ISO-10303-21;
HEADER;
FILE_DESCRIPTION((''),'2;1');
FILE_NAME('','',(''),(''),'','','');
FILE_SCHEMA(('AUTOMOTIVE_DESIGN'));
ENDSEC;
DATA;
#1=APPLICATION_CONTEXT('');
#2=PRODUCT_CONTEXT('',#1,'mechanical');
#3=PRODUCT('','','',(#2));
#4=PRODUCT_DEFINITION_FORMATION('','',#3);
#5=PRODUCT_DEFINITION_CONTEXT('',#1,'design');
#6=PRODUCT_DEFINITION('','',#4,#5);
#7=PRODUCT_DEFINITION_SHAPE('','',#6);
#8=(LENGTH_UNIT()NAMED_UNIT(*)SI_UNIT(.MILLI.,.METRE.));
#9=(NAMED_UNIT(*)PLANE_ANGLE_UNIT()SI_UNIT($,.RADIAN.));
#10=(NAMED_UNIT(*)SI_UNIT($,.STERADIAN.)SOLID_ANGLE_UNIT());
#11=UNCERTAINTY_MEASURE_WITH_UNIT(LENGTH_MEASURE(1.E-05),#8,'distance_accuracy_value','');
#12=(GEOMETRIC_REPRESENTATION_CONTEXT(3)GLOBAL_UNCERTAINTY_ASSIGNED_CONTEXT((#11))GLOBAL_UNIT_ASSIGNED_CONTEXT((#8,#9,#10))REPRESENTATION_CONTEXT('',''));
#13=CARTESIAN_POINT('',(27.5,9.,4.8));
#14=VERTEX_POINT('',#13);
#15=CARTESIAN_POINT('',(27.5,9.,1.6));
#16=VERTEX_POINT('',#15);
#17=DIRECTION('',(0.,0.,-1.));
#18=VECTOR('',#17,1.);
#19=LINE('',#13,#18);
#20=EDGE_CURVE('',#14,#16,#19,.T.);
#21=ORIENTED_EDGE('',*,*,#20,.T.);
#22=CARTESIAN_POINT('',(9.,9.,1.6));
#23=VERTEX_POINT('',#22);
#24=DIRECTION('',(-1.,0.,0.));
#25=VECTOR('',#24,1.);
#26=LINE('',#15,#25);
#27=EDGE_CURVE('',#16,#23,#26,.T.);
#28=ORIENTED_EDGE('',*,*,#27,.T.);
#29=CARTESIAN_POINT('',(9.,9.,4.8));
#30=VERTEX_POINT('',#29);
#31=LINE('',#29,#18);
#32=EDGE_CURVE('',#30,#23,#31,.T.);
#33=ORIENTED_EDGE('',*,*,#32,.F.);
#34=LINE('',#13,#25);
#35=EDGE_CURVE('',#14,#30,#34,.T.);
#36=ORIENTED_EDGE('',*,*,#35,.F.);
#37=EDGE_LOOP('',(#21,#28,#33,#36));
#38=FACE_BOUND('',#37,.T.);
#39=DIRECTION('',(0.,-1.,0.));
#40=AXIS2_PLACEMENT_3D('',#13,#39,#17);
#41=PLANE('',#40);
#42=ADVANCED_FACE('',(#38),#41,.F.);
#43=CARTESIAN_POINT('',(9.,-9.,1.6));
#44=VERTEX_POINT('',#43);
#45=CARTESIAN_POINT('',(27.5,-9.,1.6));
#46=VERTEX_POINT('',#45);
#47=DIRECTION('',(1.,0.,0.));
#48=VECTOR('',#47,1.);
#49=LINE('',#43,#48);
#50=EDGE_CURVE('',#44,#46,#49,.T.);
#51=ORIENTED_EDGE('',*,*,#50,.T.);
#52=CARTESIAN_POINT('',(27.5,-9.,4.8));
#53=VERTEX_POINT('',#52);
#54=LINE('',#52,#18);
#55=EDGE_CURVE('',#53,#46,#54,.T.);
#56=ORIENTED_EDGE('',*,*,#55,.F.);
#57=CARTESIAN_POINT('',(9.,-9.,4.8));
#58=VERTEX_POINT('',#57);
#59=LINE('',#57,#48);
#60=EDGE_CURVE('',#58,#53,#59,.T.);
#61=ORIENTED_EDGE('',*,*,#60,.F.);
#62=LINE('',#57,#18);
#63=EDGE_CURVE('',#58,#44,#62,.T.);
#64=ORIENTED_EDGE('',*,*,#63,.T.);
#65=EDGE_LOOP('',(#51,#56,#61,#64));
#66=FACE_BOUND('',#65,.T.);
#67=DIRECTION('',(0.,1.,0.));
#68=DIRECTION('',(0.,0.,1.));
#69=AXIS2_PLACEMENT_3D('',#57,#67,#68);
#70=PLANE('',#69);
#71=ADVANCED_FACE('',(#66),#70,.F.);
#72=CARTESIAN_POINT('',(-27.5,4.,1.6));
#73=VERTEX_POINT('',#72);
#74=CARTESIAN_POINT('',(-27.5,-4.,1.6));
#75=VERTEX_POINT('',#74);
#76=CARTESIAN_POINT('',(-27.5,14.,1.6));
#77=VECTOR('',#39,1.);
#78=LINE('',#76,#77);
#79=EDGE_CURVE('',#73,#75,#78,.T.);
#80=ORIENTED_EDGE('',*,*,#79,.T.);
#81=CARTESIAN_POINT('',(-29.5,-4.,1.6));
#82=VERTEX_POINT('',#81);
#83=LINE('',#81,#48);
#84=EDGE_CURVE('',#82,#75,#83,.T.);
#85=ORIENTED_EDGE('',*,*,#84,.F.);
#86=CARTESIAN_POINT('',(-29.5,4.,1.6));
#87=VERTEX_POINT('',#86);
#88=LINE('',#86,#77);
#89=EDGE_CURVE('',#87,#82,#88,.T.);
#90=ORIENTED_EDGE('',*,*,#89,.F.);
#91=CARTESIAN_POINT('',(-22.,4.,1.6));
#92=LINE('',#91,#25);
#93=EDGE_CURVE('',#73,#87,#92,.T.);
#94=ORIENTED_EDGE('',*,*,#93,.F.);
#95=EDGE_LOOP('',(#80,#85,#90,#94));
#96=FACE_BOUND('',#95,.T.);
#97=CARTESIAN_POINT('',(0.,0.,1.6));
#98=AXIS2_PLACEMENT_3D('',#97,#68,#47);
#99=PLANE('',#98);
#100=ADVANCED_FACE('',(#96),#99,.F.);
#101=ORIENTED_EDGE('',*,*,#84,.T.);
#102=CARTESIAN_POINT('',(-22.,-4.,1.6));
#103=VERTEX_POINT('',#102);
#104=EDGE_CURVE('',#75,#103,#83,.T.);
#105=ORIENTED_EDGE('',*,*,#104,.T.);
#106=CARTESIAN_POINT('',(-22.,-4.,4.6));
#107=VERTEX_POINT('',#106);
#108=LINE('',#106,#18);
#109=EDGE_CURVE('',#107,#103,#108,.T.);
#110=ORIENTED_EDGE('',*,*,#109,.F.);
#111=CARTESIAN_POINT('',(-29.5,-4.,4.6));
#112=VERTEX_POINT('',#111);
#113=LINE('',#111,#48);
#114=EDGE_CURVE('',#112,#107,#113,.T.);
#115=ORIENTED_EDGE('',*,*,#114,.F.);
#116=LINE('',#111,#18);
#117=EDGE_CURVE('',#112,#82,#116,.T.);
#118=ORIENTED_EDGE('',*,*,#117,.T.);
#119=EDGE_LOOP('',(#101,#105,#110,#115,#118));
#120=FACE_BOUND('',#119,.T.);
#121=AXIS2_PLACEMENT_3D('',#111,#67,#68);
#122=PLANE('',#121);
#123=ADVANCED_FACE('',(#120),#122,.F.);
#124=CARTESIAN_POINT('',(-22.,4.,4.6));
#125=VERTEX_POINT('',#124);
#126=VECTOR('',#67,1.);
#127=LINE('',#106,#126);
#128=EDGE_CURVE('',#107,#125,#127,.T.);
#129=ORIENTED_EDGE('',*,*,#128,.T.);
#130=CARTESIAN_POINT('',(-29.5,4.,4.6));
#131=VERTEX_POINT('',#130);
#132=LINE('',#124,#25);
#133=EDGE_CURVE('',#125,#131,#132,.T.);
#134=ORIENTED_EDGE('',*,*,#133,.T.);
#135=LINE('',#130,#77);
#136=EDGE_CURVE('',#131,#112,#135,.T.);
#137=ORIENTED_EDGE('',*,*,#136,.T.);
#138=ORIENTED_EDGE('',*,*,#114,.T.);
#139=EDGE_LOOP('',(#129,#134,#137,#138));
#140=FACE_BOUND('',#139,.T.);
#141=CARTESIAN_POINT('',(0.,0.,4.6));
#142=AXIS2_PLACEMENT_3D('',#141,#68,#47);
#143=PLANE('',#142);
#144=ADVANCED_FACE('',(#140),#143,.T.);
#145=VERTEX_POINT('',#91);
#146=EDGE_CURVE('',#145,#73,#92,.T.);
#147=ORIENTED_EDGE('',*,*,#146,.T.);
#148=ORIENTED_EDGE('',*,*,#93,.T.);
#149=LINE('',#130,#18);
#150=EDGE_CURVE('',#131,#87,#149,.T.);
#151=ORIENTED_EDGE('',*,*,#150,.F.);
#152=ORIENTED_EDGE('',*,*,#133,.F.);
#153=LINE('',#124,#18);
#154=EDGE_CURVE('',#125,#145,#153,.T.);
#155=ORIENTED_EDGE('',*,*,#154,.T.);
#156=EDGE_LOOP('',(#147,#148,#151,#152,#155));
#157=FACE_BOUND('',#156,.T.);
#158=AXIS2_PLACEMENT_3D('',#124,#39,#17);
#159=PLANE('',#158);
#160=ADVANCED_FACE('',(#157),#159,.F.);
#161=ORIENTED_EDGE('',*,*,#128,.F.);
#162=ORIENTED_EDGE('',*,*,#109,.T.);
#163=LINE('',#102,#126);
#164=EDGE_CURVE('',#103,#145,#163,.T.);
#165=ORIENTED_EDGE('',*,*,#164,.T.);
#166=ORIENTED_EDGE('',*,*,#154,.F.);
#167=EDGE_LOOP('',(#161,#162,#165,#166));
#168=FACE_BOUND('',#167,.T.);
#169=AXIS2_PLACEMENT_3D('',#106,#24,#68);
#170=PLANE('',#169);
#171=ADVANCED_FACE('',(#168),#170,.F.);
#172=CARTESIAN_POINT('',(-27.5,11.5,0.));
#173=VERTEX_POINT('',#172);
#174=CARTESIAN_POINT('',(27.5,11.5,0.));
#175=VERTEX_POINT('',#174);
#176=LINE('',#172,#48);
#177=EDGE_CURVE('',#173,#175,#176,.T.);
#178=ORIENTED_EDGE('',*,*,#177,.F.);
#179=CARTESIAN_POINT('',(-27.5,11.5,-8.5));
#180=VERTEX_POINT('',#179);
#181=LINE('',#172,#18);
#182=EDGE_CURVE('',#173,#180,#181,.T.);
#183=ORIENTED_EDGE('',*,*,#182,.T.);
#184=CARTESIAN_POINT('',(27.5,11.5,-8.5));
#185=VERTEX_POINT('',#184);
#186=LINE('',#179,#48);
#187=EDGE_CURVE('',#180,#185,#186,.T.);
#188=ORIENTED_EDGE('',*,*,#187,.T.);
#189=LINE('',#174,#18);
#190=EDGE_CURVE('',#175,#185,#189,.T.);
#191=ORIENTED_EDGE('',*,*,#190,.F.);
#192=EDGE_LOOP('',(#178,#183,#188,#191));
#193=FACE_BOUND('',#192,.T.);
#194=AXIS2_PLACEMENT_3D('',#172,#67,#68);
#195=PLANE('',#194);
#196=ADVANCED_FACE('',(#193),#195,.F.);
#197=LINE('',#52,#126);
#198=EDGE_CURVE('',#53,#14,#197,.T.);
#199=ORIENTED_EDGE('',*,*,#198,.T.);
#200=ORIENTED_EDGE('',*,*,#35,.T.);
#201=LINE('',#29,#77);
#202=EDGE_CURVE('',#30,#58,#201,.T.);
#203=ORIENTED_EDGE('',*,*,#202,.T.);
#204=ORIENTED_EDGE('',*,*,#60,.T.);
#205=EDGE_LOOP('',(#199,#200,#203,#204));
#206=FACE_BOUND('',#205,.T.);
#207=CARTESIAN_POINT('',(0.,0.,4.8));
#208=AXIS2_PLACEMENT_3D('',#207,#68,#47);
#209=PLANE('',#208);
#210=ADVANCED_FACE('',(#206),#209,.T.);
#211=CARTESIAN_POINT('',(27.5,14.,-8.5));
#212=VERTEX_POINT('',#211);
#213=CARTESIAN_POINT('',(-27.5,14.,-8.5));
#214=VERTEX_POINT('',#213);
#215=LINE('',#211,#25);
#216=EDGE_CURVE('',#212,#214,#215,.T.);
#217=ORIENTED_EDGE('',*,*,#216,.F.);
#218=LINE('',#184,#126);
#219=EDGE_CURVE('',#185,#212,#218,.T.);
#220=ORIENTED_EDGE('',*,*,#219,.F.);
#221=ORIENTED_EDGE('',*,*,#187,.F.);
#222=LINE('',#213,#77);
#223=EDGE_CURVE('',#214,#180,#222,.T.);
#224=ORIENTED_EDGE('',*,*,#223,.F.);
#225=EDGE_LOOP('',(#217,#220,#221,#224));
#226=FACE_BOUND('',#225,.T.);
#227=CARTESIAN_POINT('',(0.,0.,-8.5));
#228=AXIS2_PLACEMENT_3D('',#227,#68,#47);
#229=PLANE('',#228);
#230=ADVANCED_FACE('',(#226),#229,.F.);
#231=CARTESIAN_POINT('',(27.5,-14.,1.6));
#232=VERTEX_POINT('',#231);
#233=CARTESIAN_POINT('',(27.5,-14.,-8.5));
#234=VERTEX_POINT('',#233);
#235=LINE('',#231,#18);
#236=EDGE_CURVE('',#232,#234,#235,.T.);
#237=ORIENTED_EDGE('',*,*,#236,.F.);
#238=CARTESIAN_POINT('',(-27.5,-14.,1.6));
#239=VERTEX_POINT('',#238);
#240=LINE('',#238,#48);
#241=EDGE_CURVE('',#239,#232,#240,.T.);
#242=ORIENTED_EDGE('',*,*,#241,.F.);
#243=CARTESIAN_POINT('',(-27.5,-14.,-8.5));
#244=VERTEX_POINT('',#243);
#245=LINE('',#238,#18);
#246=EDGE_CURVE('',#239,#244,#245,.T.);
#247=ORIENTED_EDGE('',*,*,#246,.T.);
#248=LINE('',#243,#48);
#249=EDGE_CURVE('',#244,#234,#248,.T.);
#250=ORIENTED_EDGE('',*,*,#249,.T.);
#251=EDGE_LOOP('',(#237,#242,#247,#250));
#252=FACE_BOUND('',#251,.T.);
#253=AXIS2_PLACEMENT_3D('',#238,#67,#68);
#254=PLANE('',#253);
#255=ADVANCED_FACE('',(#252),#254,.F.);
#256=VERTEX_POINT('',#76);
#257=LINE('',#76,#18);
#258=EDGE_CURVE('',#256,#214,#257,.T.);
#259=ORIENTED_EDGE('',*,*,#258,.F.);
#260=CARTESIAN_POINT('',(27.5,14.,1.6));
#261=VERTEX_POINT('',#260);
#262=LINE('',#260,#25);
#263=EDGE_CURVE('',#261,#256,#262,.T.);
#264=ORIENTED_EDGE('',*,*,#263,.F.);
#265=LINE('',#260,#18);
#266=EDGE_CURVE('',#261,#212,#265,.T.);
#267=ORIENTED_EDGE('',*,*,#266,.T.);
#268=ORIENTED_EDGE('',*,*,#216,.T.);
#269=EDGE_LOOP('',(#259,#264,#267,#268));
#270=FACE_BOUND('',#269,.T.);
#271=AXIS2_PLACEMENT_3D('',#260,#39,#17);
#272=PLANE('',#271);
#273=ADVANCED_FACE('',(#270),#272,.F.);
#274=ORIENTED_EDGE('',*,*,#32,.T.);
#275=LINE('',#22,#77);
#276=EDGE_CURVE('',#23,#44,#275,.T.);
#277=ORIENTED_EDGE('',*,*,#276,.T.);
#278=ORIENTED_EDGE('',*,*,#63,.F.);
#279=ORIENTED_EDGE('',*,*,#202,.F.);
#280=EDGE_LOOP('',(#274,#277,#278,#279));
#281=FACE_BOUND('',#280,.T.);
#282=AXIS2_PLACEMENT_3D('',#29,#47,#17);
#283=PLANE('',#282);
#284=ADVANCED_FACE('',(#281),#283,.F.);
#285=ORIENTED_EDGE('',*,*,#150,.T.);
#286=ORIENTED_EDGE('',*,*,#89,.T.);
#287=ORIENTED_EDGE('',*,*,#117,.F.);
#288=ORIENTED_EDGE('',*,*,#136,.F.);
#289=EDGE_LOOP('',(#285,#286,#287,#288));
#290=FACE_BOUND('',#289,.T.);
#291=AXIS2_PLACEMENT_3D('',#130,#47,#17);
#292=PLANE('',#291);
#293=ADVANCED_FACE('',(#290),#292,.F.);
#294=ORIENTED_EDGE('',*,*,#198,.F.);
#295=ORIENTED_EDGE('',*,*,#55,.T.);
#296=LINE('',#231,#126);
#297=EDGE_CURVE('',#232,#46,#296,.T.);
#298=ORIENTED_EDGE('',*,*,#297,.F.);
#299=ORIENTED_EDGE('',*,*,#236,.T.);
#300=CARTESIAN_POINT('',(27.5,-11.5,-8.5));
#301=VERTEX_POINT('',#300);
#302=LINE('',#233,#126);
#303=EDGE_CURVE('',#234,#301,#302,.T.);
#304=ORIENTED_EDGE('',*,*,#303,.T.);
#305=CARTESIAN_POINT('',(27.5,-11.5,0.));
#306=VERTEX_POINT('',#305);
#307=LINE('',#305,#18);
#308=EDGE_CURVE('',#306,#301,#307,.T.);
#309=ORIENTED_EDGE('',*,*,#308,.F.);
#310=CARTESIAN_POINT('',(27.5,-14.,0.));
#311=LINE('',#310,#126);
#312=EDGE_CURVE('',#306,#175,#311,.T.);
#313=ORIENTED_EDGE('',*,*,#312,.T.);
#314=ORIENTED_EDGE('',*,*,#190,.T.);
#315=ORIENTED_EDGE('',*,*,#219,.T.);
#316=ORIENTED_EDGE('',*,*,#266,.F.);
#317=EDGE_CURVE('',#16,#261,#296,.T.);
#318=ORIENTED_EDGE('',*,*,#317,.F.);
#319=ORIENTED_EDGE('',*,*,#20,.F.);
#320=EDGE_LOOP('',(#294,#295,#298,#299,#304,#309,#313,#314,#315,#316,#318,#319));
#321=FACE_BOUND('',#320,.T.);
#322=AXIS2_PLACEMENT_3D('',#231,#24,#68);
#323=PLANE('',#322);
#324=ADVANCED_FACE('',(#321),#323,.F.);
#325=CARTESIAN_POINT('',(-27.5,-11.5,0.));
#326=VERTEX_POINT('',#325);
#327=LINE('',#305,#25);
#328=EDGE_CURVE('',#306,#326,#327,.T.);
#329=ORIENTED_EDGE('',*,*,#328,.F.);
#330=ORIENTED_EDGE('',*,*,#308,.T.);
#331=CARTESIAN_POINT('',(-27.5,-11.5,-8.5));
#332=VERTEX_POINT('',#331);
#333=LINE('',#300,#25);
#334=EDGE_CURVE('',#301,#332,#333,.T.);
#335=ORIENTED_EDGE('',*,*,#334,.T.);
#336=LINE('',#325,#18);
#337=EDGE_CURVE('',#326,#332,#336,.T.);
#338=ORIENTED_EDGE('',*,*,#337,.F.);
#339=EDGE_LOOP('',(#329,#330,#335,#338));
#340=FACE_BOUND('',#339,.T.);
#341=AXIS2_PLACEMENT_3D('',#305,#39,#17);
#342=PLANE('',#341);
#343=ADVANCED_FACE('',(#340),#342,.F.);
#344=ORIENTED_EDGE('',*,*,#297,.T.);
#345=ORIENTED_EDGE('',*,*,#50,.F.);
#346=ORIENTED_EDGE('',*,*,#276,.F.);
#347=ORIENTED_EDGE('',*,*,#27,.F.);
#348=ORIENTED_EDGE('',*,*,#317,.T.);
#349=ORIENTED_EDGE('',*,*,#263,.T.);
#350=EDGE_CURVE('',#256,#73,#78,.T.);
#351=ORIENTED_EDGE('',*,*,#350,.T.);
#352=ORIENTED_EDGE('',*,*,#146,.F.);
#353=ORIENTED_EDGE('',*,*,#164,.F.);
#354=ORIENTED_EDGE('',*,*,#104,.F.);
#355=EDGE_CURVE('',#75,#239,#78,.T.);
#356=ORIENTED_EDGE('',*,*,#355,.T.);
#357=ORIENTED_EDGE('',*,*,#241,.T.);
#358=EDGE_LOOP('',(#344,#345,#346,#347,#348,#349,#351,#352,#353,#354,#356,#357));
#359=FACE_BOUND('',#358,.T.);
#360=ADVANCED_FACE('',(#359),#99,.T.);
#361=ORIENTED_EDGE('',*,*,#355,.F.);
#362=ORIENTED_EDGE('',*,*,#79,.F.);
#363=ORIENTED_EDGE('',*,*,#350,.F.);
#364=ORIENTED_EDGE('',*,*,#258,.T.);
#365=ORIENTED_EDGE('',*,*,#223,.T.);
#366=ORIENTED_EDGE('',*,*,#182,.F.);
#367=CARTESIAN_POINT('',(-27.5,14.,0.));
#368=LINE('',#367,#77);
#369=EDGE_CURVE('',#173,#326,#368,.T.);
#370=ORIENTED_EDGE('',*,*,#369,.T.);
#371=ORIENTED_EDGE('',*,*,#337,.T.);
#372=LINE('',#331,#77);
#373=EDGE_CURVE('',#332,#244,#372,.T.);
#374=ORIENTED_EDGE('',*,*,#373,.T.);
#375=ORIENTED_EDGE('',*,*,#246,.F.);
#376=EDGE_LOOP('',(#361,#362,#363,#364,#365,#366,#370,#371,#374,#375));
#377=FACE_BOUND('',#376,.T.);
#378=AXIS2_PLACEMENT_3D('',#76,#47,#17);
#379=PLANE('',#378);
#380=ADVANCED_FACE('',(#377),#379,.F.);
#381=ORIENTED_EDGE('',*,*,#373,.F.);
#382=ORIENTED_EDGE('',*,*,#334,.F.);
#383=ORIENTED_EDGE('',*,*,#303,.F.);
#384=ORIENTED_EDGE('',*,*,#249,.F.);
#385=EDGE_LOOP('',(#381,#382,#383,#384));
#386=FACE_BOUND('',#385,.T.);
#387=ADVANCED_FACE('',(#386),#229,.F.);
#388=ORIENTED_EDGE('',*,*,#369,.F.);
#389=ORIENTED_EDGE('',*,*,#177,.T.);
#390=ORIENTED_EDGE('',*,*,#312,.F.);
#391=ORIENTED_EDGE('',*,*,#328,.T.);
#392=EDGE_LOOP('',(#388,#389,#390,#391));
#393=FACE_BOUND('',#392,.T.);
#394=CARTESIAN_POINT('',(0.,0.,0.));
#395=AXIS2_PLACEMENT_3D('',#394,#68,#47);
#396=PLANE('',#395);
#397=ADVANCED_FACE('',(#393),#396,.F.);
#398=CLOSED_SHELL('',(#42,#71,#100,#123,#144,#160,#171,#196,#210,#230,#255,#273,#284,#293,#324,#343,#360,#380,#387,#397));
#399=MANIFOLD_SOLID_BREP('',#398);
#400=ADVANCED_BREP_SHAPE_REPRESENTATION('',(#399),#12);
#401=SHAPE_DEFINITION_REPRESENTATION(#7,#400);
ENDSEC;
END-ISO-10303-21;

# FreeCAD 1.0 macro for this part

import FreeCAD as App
import Part
import Sketcher

V = App.Vector
Q = App.Units.Quantity


def add_polygon(sketch, points):
    """Adds a closed chain of lines whose ends are joined by coincident constraints."""
    first, n = sketch.GeometryCount, len(points)
    for a, b in zip(points, points[1:] + points[:1]):
        sketch.addGeometry(Part.LineSegment(App.Vector(*a, 0), App.Vector(*b, 0)), False)
    for i in range(n):
        sketch.addConstraint(Sketcher.Constraint("Coincident", first + i, 2, first + (i + 1) % n, 1))

doc = App.newDocument("Part")
body = doc.addObject("PartDesign::Body", "Body")

# Sketch on XY plane
sketch1 = body.newObject("Sketcher::SketchObject", "Sketch")
sketch1.AttachmentSupport = (doc.getObject("XY_Plane"), [""])
sketch1.MapMode = "FlatFace"
add_polygon(sketch1, [(-28, 14), (-28, -14), (28, -14), (28, 14)])  # lines 0-3
sketch1.addConstraint([
    Sketcher.Constraint("Vertical", 0),
    Sketcher.Constraint("Horizontal", 1),
    Sketcher.Constraint("Vertical", 2),
    Sketcher.Constraint("Horizontal", 3),
    Sketcher.Constraint("Symmetric", 0, 2, 2, 2, -1, 1),
    Sketcher.Constraint("DistanceX", 1, 1, 1, 2, Q("55 mm")),
    Sketcher.Constraint("DistanceY", 0, 2, 0, 1, Q("28 mm")),
])
pad1 = body.newObject("PartDesign::Pad", "Pad")
pad1.Profile = sketch1
pad1.Length = 1.6

# Sketch on XY plane
sketch2 = body.newObject("Sketcher::SketchObject", "Sketch001")
sketch2.AttachmentSupport = (doc.getObject("XY_Plane"), [""])
sketch2.MapMode = "FlatFace"
sketch2.AttachmentOffset = App.Placement(V(0, 0, -8.5), App.Rotation())
add_polygon(sketch2, [(-27.5, -11.5), (-27.5, -14), (27.5, -14), (27.5, -11.5)])  # lines 0-3
sketch2.addConstraint([
    Sketcher.Constraint("Vertical", 0),
    Sketcher.Constraint("Horizontal", 1),
    Sketcher.Constraint("Vertical", 2),
    Sketcher.Constraint("Horizontal", 3),
    Sketcher.Constraint("DistanceX", 1, 1, 1, 2, Q("55 mm")),
    Sketcher.Constraint("DistanceY", 0, 2, 0, 1, Q("2.5 mm")),
    Sketcher.Constraint("DistanceY", 0, 2, -1, 1, Q("14 mm")),
    Sketcher.Constraint("DistanceX", 0, 2, -1, 1, Q("27.5 mm")),
])
pad2 = body.newObject("PartDesign::Pad", "Pad001")
pad2.Profile = sketch2
pad2.Length = 8.5

# Sketch on XY plane
sketch3 = body.newObject("Sketcher::SketchObject", "Sketch002")
sketch3.AttachmentSupport = (doc.getObject("XY_Plane"), [""])
sketch3.MapMode = "FlatFace"
sketch3.AttachmentOffset = App.Placement(V(0, 0, -8.5), App.Rotation())
add_polygon(sketch3, [(-27.5, 14), (-27.5, 11.5), (27.5, 11.5), (27.5, 14)])  # lines 0-3
sketch3.addConstraint([
    Sketcher.Constraint("Vertical", 0),
    Sketcher.Constraint("Horizontal", 1),
    Sketcher.Constraint("Vertical", 2),
    Sketcher.Constraint("Horizontal", 3),
    Sketcher.Constraint("DistanceX", 1, 1, 1, 2, Q("55 mm")),
    Sketcher.Constraint("DistanceY", 0, 2, 0, 1, Q("2.5 mm")),
    Sketcher.Constraint("DistanceY", -1, 1, 2, 2, Q("14 mm")),
    Sketcher.Constraint("DistanceX", 0, 2, -1, 1, Q("27.5 mm")),
])
pad3 = body.newObject("PartDesign::Pad", "Pad002")
pad3.Profile = sketch3
pad3.Length = 8.5

# Sketch on XY plane
sketch4 = body.newObject("Sketcher::SketchObject", "Sketch003")
sketch4.AttachmentSupport = (doc.getObject("XY_Plane"), [""])
sketch4.MapMode = "FlatFace"
sketch4.AttachmentOffset = App.Placement(V(0, 0, 1.6), App.Rotation())
add_polygon(sketch4, [(9, 9), (9, -9), (28, -9), (28, 9)])  # lines 0-3
sketch4.addConstraint([
    Sketcher.Constraint("Vertical", 0),
    Sketcher.Constraint("Horizontal", 1),
    Sketcher.Constraint("Vertical", 2),
    Sketcher.Constraint("Horizontal", 3),
    Sketcher.Constraint("DistanceY", 0, 2, 0, 1, Q("18 mm")),
    Sketcher.Constraint("DistanceX", 1, 1, 1, 2, Q("18.5 mm")),
    Sketcher.Constraint("DistanceX", -1, 1, 0, 2, Q("9 mm")),
    Sketcher.Constraint("DistanceY", 0, 2, -1, 1, Q("9 mm")),
])
pad4 = body.newObject("PartDesign::Pad", "Pad003")
pad4.Profile = sketch4
pad4.Length = 3.2

# Sketch on XY plane
sketch5 = body.newObject("Sketcher::SketchObject", "Sketch004")
sketch5.AttachmentSupport = (doc.getObject("XY_Plane"), [""])
sketch5.MapMode = "FlatFace"
sketch5.AttachmentOffset = App.Placement(V(0, 0, 1.6), App.Rotation())
add_polygon(sketch5, [(-30, 4), (-30, -4), (-22, -4), (-22, 4)])  # lines 0-3
sketch5.addConstraint([
    Sketcher.Constraint("Vertical", 0),
    Sketcher.Constraint("Horizontal", 1),
    Sketcher.Constraint("Vertical", 2),
    Sketcher.Constraint("Horizontal", 3),
    Sketcher.Constraint("DistanceY", 0, 2, 0, 1, Q("8 mm")),
    Sketcher.Constraint("DistanceX", 1, 1, 1, 2, Q("7.5 mm")),
    Sketcher.Constraint("DistanceY", 0, 2, -1, 1, Q("4 mm")),
    Sketcher.Constraint("DistanceX", 1, 2, -1, 1, Q("22 mm")),
])
pad5 = body.newObject("PartDesign::Pad", "Pad004")
pad5.Profile = sketch5
pad5.Length = 3

doc.recompute()
